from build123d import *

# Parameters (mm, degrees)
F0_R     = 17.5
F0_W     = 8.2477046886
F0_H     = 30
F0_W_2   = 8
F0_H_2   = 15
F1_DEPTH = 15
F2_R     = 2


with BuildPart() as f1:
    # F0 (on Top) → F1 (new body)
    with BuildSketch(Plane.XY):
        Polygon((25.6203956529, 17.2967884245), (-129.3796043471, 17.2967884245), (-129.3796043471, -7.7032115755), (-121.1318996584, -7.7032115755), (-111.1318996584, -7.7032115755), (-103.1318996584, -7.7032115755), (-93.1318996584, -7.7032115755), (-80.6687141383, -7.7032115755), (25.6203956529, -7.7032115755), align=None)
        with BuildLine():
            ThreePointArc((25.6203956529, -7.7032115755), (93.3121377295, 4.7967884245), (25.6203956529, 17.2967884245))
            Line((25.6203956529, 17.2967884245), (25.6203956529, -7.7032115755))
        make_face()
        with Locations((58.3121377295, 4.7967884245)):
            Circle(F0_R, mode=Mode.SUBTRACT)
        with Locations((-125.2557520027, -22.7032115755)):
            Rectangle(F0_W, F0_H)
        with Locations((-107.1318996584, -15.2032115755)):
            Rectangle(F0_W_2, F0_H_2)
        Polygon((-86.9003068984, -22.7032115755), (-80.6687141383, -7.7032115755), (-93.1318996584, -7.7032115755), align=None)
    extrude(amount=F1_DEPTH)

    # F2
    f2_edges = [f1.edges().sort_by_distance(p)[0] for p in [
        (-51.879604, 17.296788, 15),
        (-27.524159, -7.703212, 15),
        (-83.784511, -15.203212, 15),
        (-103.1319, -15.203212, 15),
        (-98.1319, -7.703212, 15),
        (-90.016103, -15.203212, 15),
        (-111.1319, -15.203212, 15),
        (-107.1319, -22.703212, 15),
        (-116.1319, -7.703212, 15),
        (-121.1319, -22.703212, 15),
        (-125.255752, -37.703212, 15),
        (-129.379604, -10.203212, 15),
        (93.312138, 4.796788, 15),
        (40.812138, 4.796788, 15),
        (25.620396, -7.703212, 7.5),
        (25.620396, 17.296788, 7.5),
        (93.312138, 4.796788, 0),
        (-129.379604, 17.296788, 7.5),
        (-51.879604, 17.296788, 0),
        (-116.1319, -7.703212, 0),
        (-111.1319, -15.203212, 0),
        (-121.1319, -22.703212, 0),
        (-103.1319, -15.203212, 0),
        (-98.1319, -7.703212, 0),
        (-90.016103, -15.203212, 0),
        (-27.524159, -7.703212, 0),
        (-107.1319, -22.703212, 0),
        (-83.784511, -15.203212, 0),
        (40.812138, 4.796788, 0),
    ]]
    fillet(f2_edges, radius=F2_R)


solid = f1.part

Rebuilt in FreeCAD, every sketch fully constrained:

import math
import FreeCAD as App
import Part
import Sketcher
from FreeCAD import Vector
Q = App.Units.Quantity


def edges_at(feature, points):
    """Names of the edges that pass closest to the given points."""
    edges = feature.Shape.Edges
    near = lambda p: min(range(len(edges)), key=lambda i: edges[i].distToShape(Part.Vertex(*p))[0])
    return sorted({f"Edge{near(p) + 1}" for p in points})

doc = App.newDocument("Part")
body = doc.addObject("PartDesign::Body", "Body")

# Sketch on XY plane
sketch1 = doc.addObject("Sketcher::SketchObject", "Sketch")
body.addObject(sketch1)
sketch1.AttachmentSupport = (doc.XY_Plane, [""])
sketch1.MapMode = "FlatFace"
sketch1.addGeometry([
    Part.LineSegment(Vector(25.620396, 17.296788, 0), Vector(-129.379604, 17.296788, 0)),  # 0
    Part.LineSegment(Vector(-129.379604, 17.296788, 0), Vector(-129.379604, -7.703212, 0)),  # 1
    Part.LineSegment(Vector(-129.379604, -7.703212, 0), Vector(-129.379604, -37.703212, 0)),  # 2
    Part.LineSegment(Vector(-129.379604, -37.703212, 0), Vector(-121.1319, -37.703212, 0)),  # 3
    Part.LineSegment(Vector(-121.1319, -37.703212, 0), Vector(-121.1319, -7.703212, 0)),  # 4
    Part.LineSegment(Vector(-121.1319, -7.703212, 0), Vector(-111.1319, -7.703212, 0)),  # 5
    Part.LineSegment(Vector(-111.1319, -7.703212, 0), Vector(-111.1319, -22.703212, 0)),  # 6
    Part.LineSegment(Vector(-111.1319, -22.703212, 0), Vector(-103.1319, -22.703212, 0)),  # 7
    Part.LineSegment(Vector(-103.1319, -22.703212, 0), Vector(-103.1319, -7.703212, 0)),  # 8
    Part.LineSegment(Vector(-103.1319, -7.703212, 0), Vector(-93.1319, -7.703212, 0)),  # 9
    Part.LineSegment(Vector(-93.1319, -7.703212, 0), Vector(-86.900307, -22.703212, 0)),  # 10
    Part.LineSegment(Vector(-86.900307, -22.703212, 0), Vector(-80.668714, -7.703212, 0)),  # 11
    Part.LineSegment(Vector(-80.668714, -7.703212, 0), Vector(25.620396, -7.703212, 0)),  # 12
    Part.ArcOfCircle(Part.Circle(Vector(58.312138, 4.796788, 0), Vector(0, 0, 1), 35), math.radians(-159.075168), math.radians(159.075168)),  # 13
    Part.Circle(Vector(58.312138, 4.796788, 0), Vector(0, 0, 1), 17.5),  # 14
], False)
sketch1.addConstraint([
    Sketcher.Constraint("Coincident", 0, 2, 1, 1),
    Sketcher.Constraint("Coincident", 1, 2, 2, 1),
    Sketcher.Constraint("Coincident", 2, 2, 3, 1),
    Sketcher.Constraint("Coincident", 3, 2, 4, 1),
    Sketcher.Constraint("Coincident", 4, 2, 5, 1),
    Sketcher.Constraint("Coincident", 5, 2, 6, 1),
    Sketcher.Constraint("Coincident", 6, 2, 7, 1),
    Sketcher.Constraint("Coincident", 7, 2, 8, 1),
    Sketcher.Constraint("Coincident", 8, 2, 9, 1),
    Sketcher.Constraint("Coincident", 9, 2, 10, 1),
    Sketcher.Constraint("Coincident", 10, 2, 11, 1),
    Sketcher.Constraint("Coincident", 11, 2, 12, 1),
    Sketcher.Constraint("Coincident", 12, 2, 13, 1),
    Sketcher.Constraint("Coincident", 13, 2, 0, 1),
    Sketcher.Constraint("Horizontal", 0),
    Sketcher.Constraint("Vertical", 1),
    Sketcher.Constraint("Vertical", 2),
    Sketcher.Constraint("Horizontal", 3),
    Sketcher.Constraint("Vertical", 4),
    Sketcher.Constraint("Horizontal", 5),
    Sketcher.Constraint("Vertical", 6),
    Sketcher.Constraint("Horizontal", 7),
    Sketcher.Constraint("Vertical", 8),
    Sketcher.Constraint("Horizontal", 9),
    Sketcher.Constraint("Horizontal", 12),
    Sketcher.Constraint("Coincident", 14, 3, 13, 3),
    Sketcher.Constraint("Horizontal", 1, 2, 4, 2),
    Sketcher.Constraint("Horizontal", 5, 2, 8, 2),
    Sketcher.Constraint("Horizontal", 7, 2, 10, 2),
    Sketcher.Constraint("Horizontal", 9, 2, 11, 2),
    Sketcher.Constraint("Vertical", 12, 2, 13, 2),
    Sketcher.Constraint("Equal", 5, 9),
    Sketcher.Constraint("Equal", 10, 11),
    Sketcher.Constraint("Diameter", 14, Q("35 mm")),
    Sketcher.Constraint("Radius", 13, Q("35 mm")),
    Sketcher.Constraint("DistanceX", 0, 2, 0, 1, Q("155 mm")),
    Sketcher.Constraint("DistanceX", 5, 1, 5, 2, Q("10 mm")),
    Sketcher.Constraint("DistanceX", 7, 1, 7, 2, Q("8 mm")),
    Sketcher.Constraint("DistanceY", 1, 2, 1, 1, Q("25 mm")),
    Sketcher.Constraint("DistanceY", 2, 2, 2, 1, Q("30 mm")),
    Sketcher.Constraint("DistanceY", 6, 2, 6, 1, Q("15 mm")),
    Sketcher.Constraint("DistanceX", 12, 1, 12, 2, Q("106.28911 mm")),
    Sketcher.Constraint("DistanceX", 3, 2, -1, 1, Q("121.1319 mm")),
    Sketcher.Constraint("Distance", 10, Q("16.242929 mm")),
    Sketcher.Constraint("DistanceY", -1, 1, 13, 3, Q("4.796788 mm")),
])
pad1 = doc.addObject("PartDesign::Pad", "Pad")
body.addObject(pad1)
pad1.Profile = sketch1
pad1.Length = 15
doc.recompute()

fillet = doc.addObject("PartDesign::Fillet", "Fillet")
body.addObject(fillet)
fillet.Base = (pad1, edges_at(pad1, [
    (-51.88, 17.297, 15),
    (-27.524, -7.703, 15),
    (-83.785, -15.203, 15),
    (-103.132, -15.203, 15),
    (-98.132, -7.703, 15),
    (-90.016, -15.203, 15),
    (-111.132, -15.203, 15),
    (-107.132, -22.703, 15),
    (-116.132, -7.703, 15),
    (-121.132, -22.703, 15),
    (-125.256, -37.703, 15),
    (-129.38, -22.703, 15),
    (93.312, 4.797, 15),
    (40.812, 4.797, 15),
    (25.62, -7.703, 7.5),
    (25.62, 17.297, 7.5),
    (93.312, 4.797, 0),
    (-129.38, 17.297, 7.5),
    (-51.88, 17.297, 0),
    (-116.132, -7.703, 0),
    (-111.132, -15.203, 0),
    (-121.132, -22.703, 0),
    (-103.132, -15.203, 0),
    (-98.132, -7.703, 0),
    (-90.016, -15.203, 0),
    (-27.524, -7.703, 0),
    (-107.132, -22.703, 0),
    (-83.785, -15.203, 0),
    (40.812, 4.797, 0),
]))
fillet.Radius = 2

doc.recompute()
